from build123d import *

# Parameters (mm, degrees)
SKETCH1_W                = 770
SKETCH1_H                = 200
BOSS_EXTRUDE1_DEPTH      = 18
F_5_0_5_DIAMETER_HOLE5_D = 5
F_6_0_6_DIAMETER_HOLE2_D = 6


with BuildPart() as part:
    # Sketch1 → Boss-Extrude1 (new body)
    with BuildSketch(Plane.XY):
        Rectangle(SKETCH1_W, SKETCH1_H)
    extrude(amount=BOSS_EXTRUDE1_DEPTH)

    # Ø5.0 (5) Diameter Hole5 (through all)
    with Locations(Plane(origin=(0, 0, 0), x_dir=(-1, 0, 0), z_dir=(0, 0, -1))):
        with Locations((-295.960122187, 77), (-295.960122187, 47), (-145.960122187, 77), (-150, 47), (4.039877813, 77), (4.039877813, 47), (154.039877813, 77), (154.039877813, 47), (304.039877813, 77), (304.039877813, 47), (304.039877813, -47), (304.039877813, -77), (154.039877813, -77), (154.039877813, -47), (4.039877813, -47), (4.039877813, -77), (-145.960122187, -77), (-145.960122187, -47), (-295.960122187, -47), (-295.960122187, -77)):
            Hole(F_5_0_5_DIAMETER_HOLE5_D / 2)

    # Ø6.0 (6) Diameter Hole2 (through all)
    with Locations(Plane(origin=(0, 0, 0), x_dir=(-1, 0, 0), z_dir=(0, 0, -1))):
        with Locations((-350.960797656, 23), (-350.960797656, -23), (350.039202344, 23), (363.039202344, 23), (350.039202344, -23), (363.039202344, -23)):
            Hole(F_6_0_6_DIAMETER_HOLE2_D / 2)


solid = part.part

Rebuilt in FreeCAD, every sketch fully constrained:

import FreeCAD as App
import Part
import Sketcher
from FreeCAD import Vector


def add_polygon(sketch, points):
    """Adds a closed chain of lines whose ends are joined by coincident constraints."""
    first, n = sketch.GeometryCount, len(points)
    for a, b in zip(points, points[1:] + points[:1]):
        sketch.addGeometry(Part.LineSegment(App.Vector(*a, 0), App.Vector(*b, 0)), False)
    for i in range(n):
        sketch.addConstraint(Sketcher.Constraint("Coincident", first + i, 2, first + (i + 1) % n, 1))

doc = App.newDocument("Part")
body = doc.addObject("PartDesign::Body", "Body")

sketch1 = doc.addObject("Sketcher::SketchObject", "Sketch")
body.addObject(sketch1)
sketch1.AttachmentSupport = (doc.XY_Plane, [""])
sketch1.MapMode = "FlatFace"
add_polygon(sketch1, [(-385, 100), (-385, -100), (385, -100), (385, 100)])
sketch1.addConstraint([
    Sketcher.Constraint("Vertical", 0),
    Sketcher.Constraint("Horizontal", 1),
    Sketcher.Constraint("Vertical", 2),
    Sketcher.Constraint("Horizontal", 3),
    Sketcher.Constraint("Symmetric", 0, 2, 2, 2, -1, 1),
    Sketcher.Constraint("DistanceX", 1, 1, 1, 2, 770.0),
    Sketcher.Constraint("DistanceY", 0, 2, 0, 1, 200.0),
])
pad1 = doc.addObject("PartDesign::Pad", "Pad")
body.addObject(pad1)
pad1.Profile = sketch1
pad1.Length = 18

sketch2 = doc.addObject("Sketcher::SketchObject", "Sketch001")
body.addObject(sketch2)
sketch2.AttachmentSupport = (doc.XY_Plane, [""])
sketch2.MapMode = "FlatFace"
sketch2.addGeometry([
    Part.Circle(Vector(296, 77, 0), Vector(0, 0, 1), 2.5),
    Part.Circle(Vector(296, 47, 0), Vector(0, 0, 1), 2.5),
    Part.Circle(Vector(146, 77, 0), Vector(0, 0, 1), 2.5),
    Part.Circle(Vector(150, 47, 0), Vector(0, 0, 1), 2.5),
    Part.Circle(Vector(-4, 77, 0), Vector(0, 0, 1), 2.5),
    Part.Circle(Vector(-4, 47, 0), Vector(0, 0, 1), 2.5),
    Part.Circle(Vector(-154, 77, 0), Vector(0, 0, 1), 2.5),
    Part.Circle(Vector(-154, 47, 0), Vector(0, 0, 1), 2.5),
    Part.Circle(Vector(-304, 77, 0), Vector(0, 0, 1), 2.5),
    Part.Circle(Vector(-304, 47, 0), Vector(0, 0, 1), 2.5),
    Part.Circle(Vector(-304, -47, 0), Vector(0, 0, 1), 2.5),
    Part.Circle(Vector(-304, -77, 0), Vector(0, 0, 1), 2.5),
    Part.Circle(Vector(-154, -77, 0), Vector(0, 0, 1), 2.5),
    Part.Circle(Vector(-154, -47, 0), Vector(0, 0, 1), 2.5),
    Part.Circle(Vector(-4, -47, 0), Vector(0, 0, 1), 2.5),
    Part.Circle(Vector(-4, -77, 0), Vector(0, 0, 1), 2.5),
    Part.Circle(Vector(146, -77, 0), Vector(0, 0, 1), 2.5),
    Part.Circle(Vector(146, -47, 0), Vector(0, 0, 1), 2.5),
    Part.Circle(Vector(296, -47, 0), Vector(0, 0, 1), 2.5),
    Part.Circle(Vector(296, -77, 0), Vector(0, 0, 1), 2.5),
], False)
sketch2.addConstraint([
    Sketcher.Constraint("Equal", 0, 1),
    Sketcher.Constraint("Equal", 1, 2),
    Sketcher.Constraint("Equal", 2, 3),
    Sketcher.Constraint("Equal", 3, 4),
    Sketcher.Constraint("Equal", 4, 5),
    Sketcher.Constraint("Equal", 5, 6),
    Sketcher.Constraint("Equal", 6, 7),
    Sketcher.Constraint("Equal", 7, 8),
    Sketcher.Constraint("Equal", 8, 9),
    Sketcher.Constraint("Equal", 9, 10),
    Sketcher.Constraint("Equal", 10, 11),
    Sketcher.Constraint("Equal", 11, 12),
    Sketcher.Constraint("Equal", 12, 13),
    Sketcher.Constraint("Equal", 13, 14),
    Sketcher.Constraint("Equal", 14, 15),
    Sketcher.Constraint("Equal", 15, 16),
    Sketcher.Constraint("Equal", 16, 17),
    Sketcher.Constraint("Equal", 17, 18),
    Sketcher.Constraint("Equal", 18, 19),
    Sketcher.Constraint("Symmetric", 9, 3, 10, 3, -1),
    Sketcher.Constraint("Symmetric", 8, 3, 11, 3, -1),
    Sketcher.Constraint("Symmetric", 6, 3, 12, 3, -1),
    Sketcher.Constraint("Symmetric", 7, 3, 13, 3, -1),
    Sketcher.Constraint("Symmetric", 5, 3, 14, 3, -1),
    Sketcher.Constraint("Symmetric", 4, 3, 15, 3, -1),
    Sketcher.Constraint("Symmetric", 2, 3, 16, 3, -1),
    Sketcher.Constraint("Symmetric", 1, 3, 18, 3, -1),
    Sketcher.Constraint("Symmetric", 0, 3, 19, 3, -1),
    Sketcher.Constraint("Horizontal", 0, 3, 2, 3),
    Sketcher.Constraint("Horizontal", 1, 3, 3, 3),
    Sketcher.Constraint("Horizontal", 2, 3, 4, 3),
    Sketcher.Constraint("Horizontal", 3, 3, 5, 3),
    Sketcher.Constraint("Horizontal", 4, 3, 6, 3),
    Sketcher.Constraint("Horizontal", 5, 3, 7, 3),
    Sketcher.Constraint("Horizontal", 6, 3, 8, 3),
    Sketcher.Constraint("Horizontal", 7, 3, 9, 3),
    Sketcher.Constraint("Horizontal", 14, 3, 17, 3),
    Sketcher.Constraint("Vertical", 0, 3, 1, 3),
    Sketcher.Constraint("Vertical", 4, 3, 5, 3),
    Sketcher.Constraint("Vertical", 6, 3, 7, 3),
    Sketcher.Constraint("Vertical", 8, 3, 9, 3),
    Sketcher.Constraint("Vertical", 16, 3, 17, 3),
    Sketcher.Constraint("Diameter", 0, 5.0),
    Sketcher.Constraint("DistanceY", -1, 1, 0, 3, 77.0),
    Sketcher.Constraint("DistanceY", -1, 1, 1, 3, 47.0),
    Sketcher.Constraint("DistanceX", -1, 1, 3, 3, 150.0),
    Sketcher.Constraint("DistanceX", 2, 3, 0, 3, 150.0),
    Sketcher.Constraint("DistanceX", 4, 3, 2, 3, 150.0),
    Sketcher.Constraint("DistanceX", 6, 3, 4, 3, 150.0),
    Sketcher.Constraint("DistanceX", 8, 3, 6, 3, 150.0),
    Sketcher.Constraint("DistanceX", -1, 1, 0, 3, 295.960122),
])
doc.recompute()
hole = doc.addObject("PartDesign::Hole", "Hole")
body.addObject(hole)
hole.Profile = sketch2
hole.ThreadType = "None"
hole.Diameter = 5
hole.DepthType = "ThroughAll"
hole.Reversed = True

sketch3 = doc.addObject("Sketcher::SketchObject", "Sketch002")
body.addObject(sketch3)
sketch3.AttachmentSupport = (doc.XY_Plane, [""])
sketch3.MapMode = "FlatFace"
sketch3.addGeometry([
    Part.Circle(Vector(351, 23, 0), Vector(0, 0, 1), 3),
    Part.Circle(Vector(351, -23, 0), Vector(0, 0, 1), 3),
    Part.Circle(Vector(-350, 23, 0), Vector(0, 0, 1), 3),
    Part.Circle(Vector(-363, 23, 0), Vector(0, 0, 1), 3),
    Part.Circle(Vector(-350, -23, 0), Vector(0, 0, 1), 3),
    Part.Circle(Vector(-363, -23, 0), Vector(0, 0, 1), 3),
], False)
sketch3.addConstraint([
    Sketcher.Constraint("Equal", 0, 1),
    Sketcher.Constraint("Equal", 1, 2),
    Sketcher.Constraint("Equal", 2, 3),
    Sketcher.Constraint("Equal", 3, 4),
    Sketcher.Constraint("Equal", 4, 5),
    Sketcher.Constraint("Symmetric", 0, 3, 1, 3, -1),
    Sketcher.Constraint("Symmetric", 2, 3, 4, 3, -1),
    Sketcher.Constraint("Symmetric", 3, 3, 5, 3, -1),
    Sketcher.Constraint("Horizontal", 0, 3, 2, 3),
    Sketcher.Constraint("Horizontal", 2, 3, 3, 3),
    Sketcher.Constraint("Diameter", 0, 6.0),
    Sketcher.Constraint("DistanceY", -1, 1, 0, 3, 23.0),
    Sketcher.Constraint("DistanceX", 2, 3, 0, 3, 701.0),
    Sketcher.Constraint("DistanceX", 3, 3, 2, 3, 13.0),
    Sketcher.Constraint("DistanceX", -1, 1, 0, 3, 350.960798),
])
doc.recompute()
hole2 = doc.addObject("PartDesign::Hole", "Hole001")
body.addObject(hole2)
hole2.Profile = sketch3
hole2.ThreadType = "None"
hole2.Diameter = 6
hole2.DepthType = "ThroughAll"
hole2.Reversed = True

doc.recompute()
